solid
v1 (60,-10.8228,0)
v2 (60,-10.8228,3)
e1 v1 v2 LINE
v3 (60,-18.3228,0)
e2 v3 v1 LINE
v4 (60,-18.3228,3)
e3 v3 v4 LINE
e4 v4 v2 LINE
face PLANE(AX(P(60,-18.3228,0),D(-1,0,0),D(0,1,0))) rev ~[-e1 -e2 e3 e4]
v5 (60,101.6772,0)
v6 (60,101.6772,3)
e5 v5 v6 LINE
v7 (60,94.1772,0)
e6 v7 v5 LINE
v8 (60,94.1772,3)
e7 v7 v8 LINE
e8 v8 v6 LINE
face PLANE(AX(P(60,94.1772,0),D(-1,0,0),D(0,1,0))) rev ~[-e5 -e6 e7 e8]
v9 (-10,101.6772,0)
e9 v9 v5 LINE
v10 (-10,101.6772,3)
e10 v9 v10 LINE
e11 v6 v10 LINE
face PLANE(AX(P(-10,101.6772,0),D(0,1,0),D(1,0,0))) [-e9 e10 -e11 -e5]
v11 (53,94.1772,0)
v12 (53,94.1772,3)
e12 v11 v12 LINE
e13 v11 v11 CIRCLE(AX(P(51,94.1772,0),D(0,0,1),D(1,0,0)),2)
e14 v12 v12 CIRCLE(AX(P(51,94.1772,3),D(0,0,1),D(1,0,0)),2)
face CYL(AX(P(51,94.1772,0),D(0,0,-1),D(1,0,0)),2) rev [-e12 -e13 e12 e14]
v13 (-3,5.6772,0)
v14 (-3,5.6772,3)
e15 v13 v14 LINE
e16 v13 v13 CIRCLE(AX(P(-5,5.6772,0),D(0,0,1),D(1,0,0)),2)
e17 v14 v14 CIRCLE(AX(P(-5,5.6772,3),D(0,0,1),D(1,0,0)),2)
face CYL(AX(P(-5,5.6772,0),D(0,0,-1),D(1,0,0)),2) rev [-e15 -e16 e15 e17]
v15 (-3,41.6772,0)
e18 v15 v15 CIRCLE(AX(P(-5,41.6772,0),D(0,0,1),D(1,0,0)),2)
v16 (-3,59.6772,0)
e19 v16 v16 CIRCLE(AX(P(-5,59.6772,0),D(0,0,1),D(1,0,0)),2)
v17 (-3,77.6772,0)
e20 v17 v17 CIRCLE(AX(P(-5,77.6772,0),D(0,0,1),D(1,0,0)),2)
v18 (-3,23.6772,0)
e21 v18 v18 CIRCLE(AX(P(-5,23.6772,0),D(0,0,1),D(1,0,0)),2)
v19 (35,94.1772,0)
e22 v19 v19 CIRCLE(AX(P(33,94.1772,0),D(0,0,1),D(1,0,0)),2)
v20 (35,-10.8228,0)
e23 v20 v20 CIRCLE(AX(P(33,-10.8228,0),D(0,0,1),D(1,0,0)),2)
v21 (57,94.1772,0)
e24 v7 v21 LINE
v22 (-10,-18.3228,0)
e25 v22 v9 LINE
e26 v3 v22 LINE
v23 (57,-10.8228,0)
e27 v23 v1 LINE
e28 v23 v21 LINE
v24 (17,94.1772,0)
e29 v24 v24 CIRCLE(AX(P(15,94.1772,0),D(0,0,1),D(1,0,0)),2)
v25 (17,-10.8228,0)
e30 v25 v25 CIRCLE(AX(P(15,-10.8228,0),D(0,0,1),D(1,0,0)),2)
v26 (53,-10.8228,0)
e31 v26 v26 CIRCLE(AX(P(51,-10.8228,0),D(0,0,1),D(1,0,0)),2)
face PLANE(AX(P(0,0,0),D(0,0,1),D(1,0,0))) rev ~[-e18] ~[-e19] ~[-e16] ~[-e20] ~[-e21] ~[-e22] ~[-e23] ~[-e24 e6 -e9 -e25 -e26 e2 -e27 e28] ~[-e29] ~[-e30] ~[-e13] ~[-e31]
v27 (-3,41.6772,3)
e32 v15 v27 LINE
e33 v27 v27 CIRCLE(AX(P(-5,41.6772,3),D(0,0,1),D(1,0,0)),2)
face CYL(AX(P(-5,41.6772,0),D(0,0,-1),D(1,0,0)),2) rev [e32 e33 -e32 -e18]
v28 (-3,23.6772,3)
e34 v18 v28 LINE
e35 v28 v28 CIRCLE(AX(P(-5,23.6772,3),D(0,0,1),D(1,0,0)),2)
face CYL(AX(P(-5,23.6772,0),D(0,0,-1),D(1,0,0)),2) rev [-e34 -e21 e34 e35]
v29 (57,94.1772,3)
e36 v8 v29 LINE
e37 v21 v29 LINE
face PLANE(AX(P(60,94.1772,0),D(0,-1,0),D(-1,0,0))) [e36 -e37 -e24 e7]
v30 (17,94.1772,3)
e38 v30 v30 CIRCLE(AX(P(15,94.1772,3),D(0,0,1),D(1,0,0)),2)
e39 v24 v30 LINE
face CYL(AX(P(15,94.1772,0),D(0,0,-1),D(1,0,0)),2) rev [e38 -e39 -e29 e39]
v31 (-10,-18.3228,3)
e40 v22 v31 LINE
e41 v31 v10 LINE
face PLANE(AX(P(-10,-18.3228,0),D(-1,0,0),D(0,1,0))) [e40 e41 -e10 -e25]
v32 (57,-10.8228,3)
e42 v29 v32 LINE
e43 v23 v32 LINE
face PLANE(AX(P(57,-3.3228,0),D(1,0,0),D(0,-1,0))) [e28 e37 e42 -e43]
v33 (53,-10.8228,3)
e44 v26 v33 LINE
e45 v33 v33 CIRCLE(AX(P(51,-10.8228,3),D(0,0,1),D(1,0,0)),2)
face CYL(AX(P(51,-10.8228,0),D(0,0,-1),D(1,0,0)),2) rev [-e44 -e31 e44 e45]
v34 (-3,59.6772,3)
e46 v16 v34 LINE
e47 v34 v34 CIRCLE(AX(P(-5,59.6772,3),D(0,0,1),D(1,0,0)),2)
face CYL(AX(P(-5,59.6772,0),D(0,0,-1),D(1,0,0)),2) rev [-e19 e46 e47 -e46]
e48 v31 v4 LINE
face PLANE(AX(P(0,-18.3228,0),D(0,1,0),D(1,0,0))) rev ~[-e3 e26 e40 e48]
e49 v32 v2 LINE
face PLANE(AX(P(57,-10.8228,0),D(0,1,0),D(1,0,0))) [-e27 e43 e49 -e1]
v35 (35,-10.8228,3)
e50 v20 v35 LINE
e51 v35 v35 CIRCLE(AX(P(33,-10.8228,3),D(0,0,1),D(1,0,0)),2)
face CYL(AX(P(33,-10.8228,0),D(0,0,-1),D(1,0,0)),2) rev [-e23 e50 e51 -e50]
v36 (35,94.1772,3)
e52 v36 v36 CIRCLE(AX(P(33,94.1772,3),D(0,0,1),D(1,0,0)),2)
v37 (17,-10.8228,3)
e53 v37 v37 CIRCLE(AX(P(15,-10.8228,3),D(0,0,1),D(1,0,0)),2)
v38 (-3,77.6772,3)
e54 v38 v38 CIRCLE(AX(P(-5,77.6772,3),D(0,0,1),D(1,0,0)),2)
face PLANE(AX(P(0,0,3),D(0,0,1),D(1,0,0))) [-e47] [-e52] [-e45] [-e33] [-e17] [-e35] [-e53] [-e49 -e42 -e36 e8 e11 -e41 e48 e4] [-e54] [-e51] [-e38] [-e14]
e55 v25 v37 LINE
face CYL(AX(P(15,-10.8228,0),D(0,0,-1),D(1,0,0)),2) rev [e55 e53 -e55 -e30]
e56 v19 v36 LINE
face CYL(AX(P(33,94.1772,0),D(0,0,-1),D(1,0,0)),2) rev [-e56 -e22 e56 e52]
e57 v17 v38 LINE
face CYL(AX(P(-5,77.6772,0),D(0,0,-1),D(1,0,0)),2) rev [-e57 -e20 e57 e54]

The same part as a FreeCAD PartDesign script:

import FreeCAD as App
import Part
import Sketcher
from FreeCAD import Vector
Q = App.Units.Quantity


def add_polygon(sketch, points):
    """Adds a closed chain of lines whose ends are joined by coincident constraints."""
    first, n = sketch.GeometryCount, len(points)
    for a, b in zip(points, points[1:] + points[:1]):
        sketch.addGeometry(Part.LineSegment(App.Vector(*a, 0), App.Vector(*b, 0)), False)
    for i in range(n):
        sketch.addConstraint(Sketcher.Constraint("Coincident", first + i, 2, first + (i + 1) % n, 1))

doc = App.newDocument("Part")
body = doc.addObject("PartDesign::Body", "Body")

sketch1 = doc.addObject("Sketcher::SketchObject", "Sketch")
body.addObject(sketch1)
sketch1.AttachmentSupport = (doc.XY_Plane, [""])
sketch1.MapMode = "FlatFace"
add_polygon(sketch1, [(57, 94.2), (60, 94.2), (60, 101.7), (-10, 101.7), (-10, -18.3), (60, -18.3), (60, -10.8), (57, -10.8)])
sketch1.addGeometry(Part.Circle(Vector(15, -10.8, 0), Vector(0, 0, 1), 2), False)
sketch1.addGeometry(Part.Circle(Vector(33, -10.8, 0), Vector(0, 0, 1), 2), False)
sketch1.addGeometry(Part.Circle(Vector(51, -10.8, 0), Vector(0, 0, 1), 2), False)
sketch1.addGeometry(Part.Circle(Vector(-5, 41.7, 0), Vector(0, 0, 1), 2), False)
sketch1.addGeometry(Part.Circle(Vector(-5, 59.7, 0), Vector(0, 0, 1), 2), False)
sketch1.addGeometry(Part.Circle(Vector(-5, 77.7, 0), Vector(0, 0, 1), 2), False)
sketch1.addGeometry(Part.Circle(Vector(-5, 5.7, 0), Vector(0, 0, 1), 2), False)
sketch1.addGeometry(Part.Circle(Vector(-5, 23.7, 0), Vector(0, 0, 1), 2), False)
sketch1.addGeometry(Part.Circle(Vector(51, 94.2, 0), Vector(0, 0, 1), 2), False)
sketch1.addGeometry(Part.Circle(Vector(15, 94.2, 0), Vector(0, 0, 1), 2), False)
sketch1.addGeometry(Part.Circle(Vector(33, 94.2, 0), Vector(0, 0, 1), 2), False)
sketch1.addConstraint(Sketcher.Constraint("Horizontal", 0))
sketch1.addConstraint(Sketcher.Constraint("Vertical", 1))
sketch1.addConstraint(Sketcher.Constraint("Horizontal", 2))
sketch1.addConstraint(Sketcher.Constraint("Vertical", 3))
sketch1.addConstraint(Sketcher.Constraint("Horizontal", 4))
sketch1.addConstraint(Sketcher.Constraint("Vertical", 5))
sketch1.addConstraint(Sketcher.Constraint("Horizontal", 6))
sketch1.addConstraint(Sketcher.Constraint("Vertical", 7))
sketch1.addConstraint(Sketcher.Constraint("Equal", 8, 9))
sketch1.addConstraint(Sketcher.Constraint("Equal", 9, 10))
sketch1.addConstraint(Sketcher.Constraint("Equal", 10, 11))
sketch1.addConstraint(Sketcher.Constraint("Equal", 11, 12))
sketch1.addConstraint(Sketcher.Constraint("Equal", 12, 13))
sketch1.addConstraint(Sketcher.Constraint("Equal", 13, 14))
sketch1.addConstraint(Sketcher.Constraint("Equal", 14, 15))
sketch1.addConstraint(Sketcher.Constraint("Equal", 15, 16))
sketch1.addConstraint(Sketcher.Constraint("Equal", 16, 17))
sketch1.addConstraint(Sketcher.Constraint("Equal", 17, 18))
sketch1.addConstraint(Sketcher.Constraint("Horizontal", 8, 3, 9, 3))
sketch1.addConstraint(Sketcher.Constraint("Horizontal", 9, 3, 10, 3))
sketch1.addConstraint(Sketcher.Constraint("Horizontal", 16, 3, 17, 3))
sketch1.addConstraint(Sketcher.Constraint("Horizontal", 17, 3, 18, 3))
sketch1.addConstraint(Sketcher.Constraint("Horizontal", 18, 3, 0, 2))
sketch1.addConstraint(Sketcher.Constraint("Horizontal", 10, 3, 5, 2))
sketch1.addConstraint(Sketcher.Constraint("Vertical", 11, 3, 12, 3))
sketch1.addConstraint(Sketcher.Constraint("Vertical", 12, 3, 13, 3))
sketch1.addConstraint(Sketcher.Constraint("Vertical", 13, 3, 14, 3))
sketch1.addConstraint(Sketcher.Constraint("Vertical", 14, 3, 15, 3))
sketch1.addConstraint(Sketcher.Constraint("Vertical", 10, 3, 16, 3))
sketch1.addConstraint(Sketcher.Constraint("Vertical", 8, 3, 17, 3))
sketch1.addConstraint(Sketcher.Constraint("Vertical", 9, 3, 18, 3))
sketch1.addConstraint(Sketcher.Constraint("Vertical", 1, 2, 4, 2))
sketch1.addConstraint(Sketcher.Constraint("Equal", 1, 5))
sketch1.addConstraint(Sketcher.Constraint("Diameter", 8, Q("4 mm")))
sketch1.addConstraint(Sketcher.Constraint("DistanceX", 0, 1, 0, 2, Q("3 mm")))
sketch1.addConstraint(Sketcher.Constraint("DistanceX", 2, 2, 2, 1, Q("70 mm")))
sketch1.addConstraint(Sketcher.Constraint("DistanceY", 3, 2, 3, 1, Q("120 mm")))
sketch1.addConstraint(Sketcher.Constraint("DistanceY", 7, 1, 7, 2, Q("105 mm")))
sketch1.addConstraint(Sketcher.Constraint("DistanceX", -1, 1, 8, 3, Q("15 mm")))
sketch1.addConstraint(Sketcher.Constraint("DistanceX", -1, 1, 9, 3, Q("33 mm")))
sketch1.addConstraint(Sketcher.Constraint("DistanceX", -1, 1, 10, 3, Q("51 mm")))
sketch1.addConstraint(Sketcher.Constraint("DistanceX", 11, 3, -1, 1, Q("5 mm")))
sketch1.addConstraint(Sketcher.Constraint("DistanceX", -1, 1, 0, 2, Q("60 mm")))
sketch1.addConstraint(Sketcher.Constraint("DistanceY", 11, 3, 12, 3, Q("18 mm")))
sketch1.addConstraint(Sketcher.Constraint("DistanceY", 12, 3, 13, 3, Q("18 mm")))
sketch1.addConstraint(Sketcher.Constraint("DistanceY", 14, 3, 11, 3, Q("36 mm")))
sketch1.addConstraint(Sketcher.Constraint("DistanceY", 15, 3, 11, 3, Q("18 mm")))
sketch1.addConstraint(Sketcher.Constraint("DistanceY", 13, 3, 1, 2, Q("24 mm")))
sketch1.addConstraint(Sketcher.Constraint("DistanceY", 8, 3, -1, 1, Q("10.8228 mm")))
pad1 = doc.addObject("PartDesign::Pad", "Pad")
body.addObject(pad1)
pad1.Profile = sketch1
pad1.Length = 3

doc.recompute()
